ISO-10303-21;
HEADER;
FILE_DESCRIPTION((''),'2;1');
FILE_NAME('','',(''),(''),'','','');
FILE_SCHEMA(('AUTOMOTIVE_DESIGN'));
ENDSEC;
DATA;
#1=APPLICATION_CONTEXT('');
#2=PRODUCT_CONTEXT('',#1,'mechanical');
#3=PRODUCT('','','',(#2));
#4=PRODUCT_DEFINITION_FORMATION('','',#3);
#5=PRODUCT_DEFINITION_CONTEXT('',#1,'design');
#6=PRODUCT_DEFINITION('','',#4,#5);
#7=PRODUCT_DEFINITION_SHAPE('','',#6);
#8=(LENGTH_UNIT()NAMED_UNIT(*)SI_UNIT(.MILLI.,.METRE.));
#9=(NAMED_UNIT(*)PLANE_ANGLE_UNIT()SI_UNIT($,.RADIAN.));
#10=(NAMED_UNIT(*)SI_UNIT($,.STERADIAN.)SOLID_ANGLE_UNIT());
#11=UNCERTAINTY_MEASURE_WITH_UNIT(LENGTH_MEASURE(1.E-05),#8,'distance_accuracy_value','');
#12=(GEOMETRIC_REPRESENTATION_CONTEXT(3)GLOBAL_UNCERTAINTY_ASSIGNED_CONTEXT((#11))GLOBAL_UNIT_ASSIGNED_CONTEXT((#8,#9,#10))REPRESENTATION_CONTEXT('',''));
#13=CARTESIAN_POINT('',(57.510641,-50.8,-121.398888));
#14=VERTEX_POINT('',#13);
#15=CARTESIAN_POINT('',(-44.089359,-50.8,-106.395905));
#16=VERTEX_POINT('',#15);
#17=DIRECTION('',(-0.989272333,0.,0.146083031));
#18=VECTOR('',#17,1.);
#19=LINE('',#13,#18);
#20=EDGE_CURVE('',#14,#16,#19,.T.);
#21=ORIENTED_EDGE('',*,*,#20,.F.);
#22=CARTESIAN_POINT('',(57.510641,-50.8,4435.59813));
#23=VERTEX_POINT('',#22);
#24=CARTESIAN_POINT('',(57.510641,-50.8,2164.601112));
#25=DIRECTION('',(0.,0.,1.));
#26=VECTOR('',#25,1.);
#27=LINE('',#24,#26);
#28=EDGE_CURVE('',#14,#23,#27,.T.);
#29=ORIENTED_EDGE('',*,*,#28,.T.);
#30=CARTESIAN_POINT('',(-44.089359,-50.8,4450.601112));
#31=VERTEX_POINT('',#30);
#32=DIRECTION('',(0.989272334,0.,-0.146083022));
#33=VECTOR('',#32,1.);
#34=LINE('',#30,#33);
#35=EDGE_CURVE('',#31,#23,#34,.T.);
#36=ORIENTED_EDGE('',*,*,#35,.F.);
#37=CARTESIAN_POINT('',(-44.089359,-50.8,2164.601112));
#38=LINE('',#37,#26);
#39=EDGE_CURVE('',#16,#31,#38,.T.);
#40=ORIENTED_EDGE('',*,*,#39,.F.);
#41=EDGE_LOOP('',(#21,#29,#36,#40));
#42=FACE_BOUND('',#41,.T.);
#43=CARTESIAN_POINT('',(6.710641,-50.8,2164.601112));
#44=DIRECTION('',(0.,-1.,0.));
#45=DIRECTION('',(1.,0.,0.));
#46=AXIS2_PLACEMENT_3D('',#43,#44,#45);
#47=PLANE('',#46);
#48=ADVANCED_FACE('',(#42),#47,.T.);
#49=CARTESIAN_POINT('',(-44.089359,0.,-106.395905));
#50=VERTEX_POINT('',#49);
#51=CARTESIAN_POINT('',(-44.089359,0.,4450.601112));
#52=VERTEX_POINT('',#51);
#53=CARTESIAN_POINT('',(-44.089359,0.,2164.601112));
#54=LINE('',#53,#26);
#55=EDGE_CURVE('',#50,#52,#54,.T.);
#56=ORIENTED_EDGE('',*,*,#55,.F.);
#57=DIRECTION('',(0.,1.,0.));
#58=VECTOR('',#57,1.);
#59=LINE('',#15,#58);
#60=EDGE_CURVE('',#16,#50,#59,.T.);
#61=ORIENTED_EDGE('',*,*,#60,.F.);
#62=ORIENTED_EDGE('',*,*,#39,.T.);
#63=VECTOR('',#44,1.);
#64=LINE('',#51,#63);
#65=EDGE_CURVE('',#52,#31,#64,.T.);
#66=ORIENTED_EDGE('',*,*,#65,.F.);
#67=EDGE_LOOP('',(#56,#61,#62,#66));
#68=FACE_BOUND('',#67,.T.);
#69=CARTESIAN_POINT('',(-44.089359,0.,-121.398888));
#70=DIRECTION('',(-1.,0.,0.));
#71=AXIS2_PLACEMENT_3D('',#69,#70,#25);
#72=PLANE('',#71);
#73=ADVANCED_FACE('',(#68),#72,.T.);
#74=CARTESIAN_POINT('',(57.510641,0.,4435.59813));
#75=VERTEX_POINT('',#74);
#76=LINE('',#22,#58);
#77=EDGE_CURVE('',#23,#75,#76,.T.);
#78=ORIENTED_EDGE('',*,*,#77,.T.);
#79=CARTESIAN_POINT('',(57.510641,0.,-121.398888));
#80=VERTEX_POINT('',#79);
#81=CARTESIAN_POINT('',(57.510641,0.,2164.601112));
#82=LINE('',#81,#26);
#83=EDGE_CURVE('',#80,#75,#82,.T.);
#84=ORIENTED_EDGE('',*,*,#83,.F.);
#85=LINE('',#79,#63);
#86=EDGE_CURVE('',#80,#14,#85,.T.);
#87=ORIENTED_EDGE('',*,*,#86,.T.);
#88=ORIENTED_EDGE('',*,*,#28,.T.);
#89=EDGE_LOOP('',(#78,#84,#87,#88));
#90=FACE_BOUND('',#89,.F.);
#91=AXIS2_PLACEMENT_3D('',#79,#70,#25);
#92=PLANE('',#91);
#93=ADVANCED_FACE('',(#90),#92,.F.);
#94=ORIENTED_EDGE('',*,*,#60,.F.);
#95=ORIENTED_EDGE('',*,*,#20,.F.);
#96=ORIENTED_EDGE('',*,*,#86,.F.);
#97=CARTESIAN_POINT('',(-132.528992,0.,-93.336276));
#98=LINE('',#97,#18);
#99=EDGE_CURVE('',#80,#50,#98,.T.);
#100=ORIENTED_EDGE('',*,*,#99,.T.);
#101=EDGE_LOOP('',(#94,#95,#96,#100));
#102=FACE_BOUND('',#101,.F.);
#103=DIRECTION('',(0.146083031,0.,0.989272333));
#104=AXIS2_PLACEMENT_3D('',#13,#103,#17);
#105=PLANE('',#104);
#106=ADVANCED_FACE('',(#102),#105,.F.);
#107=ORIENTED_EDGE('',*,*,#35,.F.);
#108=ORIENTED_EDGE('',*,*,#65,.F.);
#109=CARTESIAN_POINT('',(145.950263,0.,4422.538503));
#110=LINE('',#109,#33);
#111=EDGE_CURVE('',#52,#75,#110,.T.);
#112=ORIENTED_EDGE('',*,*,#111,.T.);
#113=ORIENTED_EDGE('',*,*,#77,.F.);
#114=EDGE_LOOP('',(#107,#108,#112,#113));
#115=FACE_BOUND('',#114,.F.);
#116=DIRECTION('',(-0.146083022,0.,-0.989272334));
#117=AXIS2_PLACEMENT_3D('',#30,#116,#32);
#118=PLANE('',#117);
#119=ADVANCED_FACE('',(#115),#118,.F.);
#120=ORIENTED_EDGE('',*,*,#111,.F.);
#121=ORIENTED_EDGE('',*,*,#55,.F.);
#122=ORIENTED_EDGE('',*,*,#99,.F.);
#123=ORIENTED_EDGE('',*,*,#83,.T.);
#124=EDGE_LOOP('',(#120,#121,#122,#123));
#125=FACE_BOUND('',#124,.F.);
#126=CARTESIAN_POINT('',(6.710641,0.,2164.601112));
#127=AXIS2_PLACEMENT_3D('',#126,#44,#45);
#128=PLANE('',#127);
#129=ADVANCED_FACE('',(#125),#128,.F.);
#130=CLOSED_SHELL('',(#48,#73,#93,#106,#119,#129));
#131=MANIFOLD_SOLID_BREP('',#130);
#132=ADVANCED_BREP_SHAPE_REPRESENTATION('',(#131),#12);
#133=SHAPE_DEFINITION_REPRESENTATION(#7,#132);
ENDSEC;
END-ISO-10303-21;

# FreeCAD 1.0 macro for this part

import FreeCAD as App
import Part
import Sketcher

V = App.Vector
Q = App.Units.Quantity

doc = App.newDocument("Part")
body = doc.addObject("PartDesign::Body", "Body")

sketch1 = body.newObject("Sketcher::SketchObject", "Sketch")
sketch1.AttachmentSupport = (doc.getObject("XZ_Plane"), [""])
sketch1.MapMode = "FlatFace"
sketch1.addGeometry(Part.LineSegment(V(-44, 4451, 0), V(-44, -121, 0)), False)
sketch1.addGeometry(Part.LineSegment(V(-44, -121, 0), V(58, -121, 0)), False)
sketch1.addGeometry(Part.LineSegment(V(58, -121, 0), V(58, 4451, 0)), False)
sketch1.addGeometry(Part.LineSegment(V(58, 4451, 0), V(-44, 4451, 0)), False)
sketch1.addConstraint(Sketcher.Constraint("Coincident", 0, 2, 1, 1))
sketch1.addConstraint(Sketcher.Constraint("Coincident", 1, 2, 2, 1))
sketch1.addConstraint(Sketcher.Constraint("Coincident", 2, 2, 3, 1))
sketch1.addConstraint(Sketcher.Constraint("Coincident", 3, 2, 0, 1))
sketch1.addConstraint(Sketcher.Constraint("Vertical", 0))
sketch1.addConstraint(Sketcher.Constraint("Horizontal", 1))
sketch1.addConstraint(Sketcher.Constraint("Vertical", 2))
sketch1.addConstraint(Sketcher.Constraint("Horizontal", 3))
sketch1.addConstraint(Sketcher.Constraint("DistanceX", 1, 1, 1, 2, Q("4 in")))
sketch1.addConstraint(Sketcher.Constraint("DistanceY", 0, 2, 0, 1, Q("180 in")))
sketch1.addConstraint(Sketcher.Constraint("DistanceX", 0, 2, -1, 1, 44.089359))
sketch1.addConstraint(Sketcher.Constraint("DistanceY", 0, 2, -1, 1, 121.398888))
pad1 = body.newObject("PartDesign::Pad", "Pad")
pad1.Profile = sketch1
pad1.Length = Q("2 in")

sketch2 = body.newObject("Sketcher::SketchObject", "Sketch001")
sketch2.AttachmentSupport = (doc.getObject("XZ_Plane"), [""])
sketch2.MapMode = "FlatFace"
sketch2.AttachmentOffset = App.Placement(V(0, 0, 2 * 25.4), App.Rotation())
sketch2.addGeometry(Part.LineSegment(V(58, 4451, 0), V(-44, 4451, 0)), False)
sketch2.addGeometry(Part.LineSegment(V(-44, 4451, 0), V(58, 4436, 0)), False)
sketch2.addGeometry(Part.LineSegment(V(58, 4436, 0), V(58, 4451, 0)), False)
sketch2.addGeometry(Part.LineSegment(V(-44, -121, 0), V(58, -121, 0)), False)
sketch2.addGeometry(Part.LineSegment(V(58, -121, 0), V(-44, -106, 0)), False)
sketch2.addGeometry(Part.LineSegment(V(-44, -106, 0), V(-44, -121, 0)), False)
sketch2.addConstraint(Sketcher.Constraint("Coincident", 0, 2, 1, 1))
sketch2.addConstraint(Sketcher.Constraint("Coincident", 1, 2, 2, 1))
sketch2.addConstraint(Sketcher.Constraint("Coincident", 2, 2, 0, 1))
sketch2.addConstraint(Sketcher.Constraint("Coincident", 3, 2, 4, 1))
sketch2.addConstraint(Sketcher.Constraint("Coincident", 4, 2, 5, 1))
sketch2.addConstraint(Sketcher.Constraint("Coincident", 5, 2, 3, 1))
sketch2.addConstraint(Sketcher.Constraint("Horizontal", 0))
sketch2.addConstraint(Sketcher.Constraint("Vertical", 2))
sketch2.addConstraint(Sketcher.Constraint("Horizontal", 3))
sketch2.addConstraint(Sketcher.Constraint("Vertical", 5))
sketch2.addConstraint(Sketcher.Constraint("Parallel", 1, 4))
sketch2.addConstraint(Sketcher.Constraint("Vertical", 2, 2, 3, 2))
sketch2.addConstraint(Sketcher.Constraint("Vertical", 0, 2, 4, 2))
sketch2.addConstraint(Sketcher.Constraint("DistanceX", 0, 2, 0, 1, Q("4 in")))
sketch2.addConstraint(Sketcher.Constraint("DistanceY", 3, 2, 2, 2, Q("180 in")))
sketch2.addConstraint(Sketcher.Constraint("Angle", 1, Q("-8.4 deg")))
sketch2.addConstraint(Sketcher.Constraint("DistanceX", 0, 2, -1, 1, 44.089359))
sketch2.addConstraint(Sketcher.Constraint("DistanceY", -1, 1, 1, 2, 4435.59813))
pocket1 = body.newObject("PartDesign::Pocket", "Pocket")
pocket1.Profile = sketch2
pocket1.Length = Q("4.87 in")

doc.recompute()
